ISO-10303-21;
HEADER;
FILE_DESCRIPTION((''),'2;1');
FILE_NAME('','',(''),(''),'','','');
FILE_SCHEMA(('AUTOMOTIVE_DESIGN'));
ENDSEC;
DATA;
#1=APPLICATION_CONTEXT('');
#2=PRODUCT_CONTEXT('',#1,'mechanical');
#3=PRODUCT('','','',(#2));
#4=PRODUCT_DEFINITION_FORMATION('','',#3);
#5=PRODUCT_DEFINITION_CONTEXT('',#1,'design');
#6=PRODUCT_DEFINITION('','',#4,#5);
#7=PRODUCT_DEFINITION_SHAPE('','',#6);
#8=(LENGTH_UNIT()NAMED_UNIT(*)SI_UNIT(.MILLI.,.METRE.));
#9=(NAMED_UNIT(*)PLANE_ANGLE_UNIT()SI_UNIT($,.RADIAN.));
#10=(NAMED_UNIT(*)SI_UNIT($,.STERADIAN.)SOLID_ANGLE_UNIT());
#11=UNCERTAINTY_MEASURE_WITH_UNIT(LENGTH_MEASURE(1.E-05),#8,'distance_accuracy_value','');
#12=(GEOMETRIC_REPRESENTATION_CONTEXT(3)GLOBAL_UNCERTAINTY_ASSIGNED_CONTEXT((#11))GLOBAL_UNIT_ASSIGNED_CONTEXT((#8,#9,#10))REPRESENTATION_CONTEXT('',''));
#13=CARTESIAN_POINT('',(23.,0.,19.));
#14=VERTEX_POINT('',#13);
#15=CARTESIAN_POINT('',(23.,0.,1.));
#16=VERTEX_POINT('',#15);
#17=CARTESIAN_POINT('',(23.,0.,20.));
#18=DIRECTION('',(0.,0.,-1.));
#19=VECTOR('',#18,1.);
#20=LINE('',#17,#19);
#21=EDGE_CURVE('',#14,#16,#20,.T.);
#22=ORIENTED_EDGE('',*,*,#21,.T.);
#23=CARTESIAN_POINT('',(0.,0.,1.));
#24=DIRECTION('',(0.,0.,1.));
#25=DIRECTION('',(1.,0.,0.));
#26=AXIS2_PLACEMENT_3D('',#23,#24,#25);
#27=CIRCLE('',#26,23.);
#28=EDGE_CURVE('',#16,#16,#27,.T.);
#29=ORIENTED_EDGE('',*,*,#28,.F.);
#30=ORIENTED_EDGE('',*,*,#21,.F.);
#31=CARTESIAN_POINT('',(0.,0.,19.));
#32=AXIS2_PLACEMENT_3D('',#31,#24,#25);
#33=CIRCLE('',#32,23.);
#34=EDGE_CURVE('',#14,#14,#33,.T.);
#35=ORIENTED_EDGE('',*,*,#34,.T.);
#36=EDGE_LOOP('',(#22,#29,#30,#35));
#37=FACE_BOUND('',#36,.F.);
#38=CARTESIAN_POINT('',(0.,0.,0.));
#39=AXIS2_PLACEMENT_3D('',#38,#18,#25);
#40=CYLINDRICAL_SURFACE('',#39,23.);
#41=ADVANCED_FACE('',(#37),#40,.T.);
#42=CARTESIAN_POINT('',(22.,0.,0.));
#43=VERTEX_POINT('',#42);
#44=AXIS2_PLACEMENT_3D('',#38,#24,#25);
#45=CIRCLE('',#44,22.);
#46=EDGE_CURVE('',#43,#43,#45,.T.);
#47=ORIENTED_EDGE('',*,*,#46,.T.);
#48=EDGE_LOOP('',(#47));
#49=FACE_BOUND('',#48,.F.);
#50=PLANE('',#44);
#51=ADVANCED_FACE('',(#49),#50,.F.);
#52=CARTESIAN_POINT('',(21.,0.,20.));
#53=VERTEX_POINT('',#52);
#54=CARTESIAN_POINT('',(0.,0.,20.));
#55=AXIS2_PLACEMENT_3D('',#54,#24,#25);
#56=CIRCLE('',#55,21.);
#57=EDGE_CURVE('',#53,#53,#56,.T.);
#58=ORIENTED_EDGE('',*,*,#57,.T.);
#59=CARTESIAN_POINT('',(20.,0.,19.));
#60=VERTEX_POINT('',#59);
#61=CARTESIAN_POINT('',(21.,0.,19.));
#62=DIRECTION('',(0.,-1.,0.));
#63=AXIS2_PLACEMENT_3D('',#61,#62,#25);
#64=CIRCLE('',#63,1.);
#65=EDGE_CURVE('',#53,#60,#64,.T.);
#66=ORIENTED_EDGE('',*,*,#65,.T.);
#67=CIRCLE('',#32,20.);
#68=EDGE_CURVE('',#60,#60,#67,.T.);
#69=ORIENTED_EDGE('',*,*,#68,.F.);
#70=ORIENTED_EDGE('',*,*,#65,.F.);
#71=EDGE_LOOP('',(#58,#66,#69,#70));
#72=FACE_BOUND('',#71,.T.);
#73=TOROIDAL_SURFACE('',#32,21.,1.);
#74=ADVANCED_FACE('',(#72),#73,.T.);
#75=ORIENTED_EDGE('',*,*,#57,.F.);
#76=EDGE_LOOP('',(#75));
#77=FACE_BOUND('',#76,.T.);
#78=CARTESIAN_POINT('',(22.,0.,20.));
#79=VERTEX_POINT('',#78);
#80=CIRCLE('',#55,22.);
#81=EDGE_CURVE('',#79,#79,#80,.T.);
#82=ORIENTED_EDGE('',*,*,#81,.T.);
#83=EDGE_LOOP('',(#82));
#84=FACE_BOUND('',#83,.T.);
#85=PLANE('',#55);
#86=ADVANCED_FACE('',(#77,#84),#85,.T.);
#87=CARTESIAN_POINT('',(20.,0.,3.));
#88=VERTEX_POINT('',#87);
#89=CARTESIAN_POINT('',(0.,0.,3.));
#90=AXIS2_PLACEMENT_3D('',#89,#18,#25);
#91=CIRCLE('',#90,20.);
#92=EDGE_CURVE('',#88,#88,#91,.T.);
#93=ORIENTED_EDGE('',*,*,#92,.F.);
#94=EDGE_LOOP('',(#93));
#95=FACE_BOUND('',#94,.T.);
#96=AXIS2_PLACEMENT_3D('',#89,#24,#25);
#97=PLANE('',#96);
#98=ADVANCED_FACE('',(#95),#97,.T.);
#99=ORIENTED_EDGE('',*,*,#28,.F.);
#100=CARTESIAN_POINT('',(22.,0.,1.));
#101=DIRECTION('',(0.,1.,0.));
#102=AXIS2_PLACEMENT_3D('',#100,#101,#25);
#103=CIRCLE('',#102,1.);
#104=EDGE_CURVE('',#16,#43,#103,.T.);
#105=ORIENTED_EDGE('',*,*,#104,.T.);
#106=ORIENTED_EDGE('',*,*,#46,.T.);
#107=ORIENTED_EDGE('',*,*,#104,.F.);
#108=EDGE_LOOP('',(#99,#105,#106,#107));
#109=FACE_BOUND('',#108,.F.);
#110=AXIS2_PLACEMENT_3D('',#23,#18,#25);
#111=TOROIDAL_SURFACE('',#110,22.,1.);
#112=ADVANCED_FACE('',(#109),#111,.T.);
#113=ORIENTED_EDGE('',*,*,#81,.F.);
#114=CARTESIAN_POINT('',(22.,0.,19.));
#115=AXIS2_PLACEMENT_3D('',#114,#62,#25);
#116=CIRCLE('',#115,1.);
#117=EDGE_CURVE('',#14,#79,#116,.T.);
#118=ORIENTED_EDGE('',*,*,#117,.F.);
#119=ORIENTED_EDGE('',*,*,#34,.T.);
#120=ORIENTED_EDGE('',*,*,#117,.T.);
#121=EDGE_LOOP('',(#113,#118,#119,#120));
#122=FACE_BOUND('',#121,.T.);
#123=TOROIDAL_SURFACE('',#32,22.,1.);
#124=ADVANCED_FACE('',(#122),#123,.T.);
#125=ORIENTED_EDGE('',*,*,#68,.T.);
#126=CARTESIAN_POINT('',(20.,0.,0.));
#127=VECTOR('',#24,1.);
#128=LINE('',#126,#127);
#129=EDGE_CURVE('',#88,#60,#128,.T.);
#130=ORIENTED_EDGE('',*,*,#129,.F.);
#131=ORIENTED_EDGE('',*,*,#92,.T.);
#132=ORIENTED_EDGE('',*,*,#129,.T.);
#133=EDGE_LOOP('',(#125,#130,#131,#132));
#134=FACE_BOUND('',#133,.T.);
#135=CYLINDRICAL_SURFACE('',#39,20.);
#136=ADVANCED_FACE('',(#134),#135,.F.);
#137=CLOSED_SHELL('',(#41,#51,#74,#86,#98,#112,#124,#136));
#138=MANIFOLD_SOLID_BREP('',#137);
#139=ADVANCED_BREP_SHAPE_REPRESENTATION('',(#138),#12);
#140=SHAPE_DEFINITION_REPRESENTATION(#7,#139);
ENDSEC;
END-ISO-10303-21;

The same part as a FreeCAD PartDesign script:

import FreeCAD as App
import Part
import Sketcher
from FreeCAD import Vector
Q = App.Units.Quantity


def edges_at(feature, points):
    """Names of the edges that pass closest to the given points."""
    edges = feature.Shape.Edges
    near = lambda p: min(range(len(edges)), key=lambda i: edges[i].distToShape(Part.Vertex(*p))[0])
    return sorted({f"Edge{near(p) + 1}" for p in points})

doc = App.newDocument("Part")
body = doc.addObject("PartDesign::Body", "Body")

# Sketch on XY plane
sketch1 = doc.addObject("Sketcher::SketchObject", "Sketch")
body.addObject(sketch1)
sketch1.AttachmentSupport = (doc.XY_Plane, [""])
sketch1.MapMode = "FlatFace"
sketch1.addGeometry(Part.Circle(Vector(0, 0, 0), Vector(0, 0, 1), 23), False)
sketch1.addGeometry(Part.Circle(Vector(0, 0, 0), Vector(0, 0, 1), 20), False)
sketch1.addConstraint(Sketcher.Constraint("Coincident", 0, 3, -1, 1))
sketch1.addConstraint(Sketcher.Constraint("Coincident", 1, 3, -1, 1))
sketch1.addConstraint(Sketcher.Constraint("Diameter", 0, Q("46 mm")))
sketch1.addConstraint(Sketcher.Constraint("Diameter", 1, Q("40 mm")))
pad1 = doc.addObject("PartDesign::Pad", "Pad")
body.addObject(pad1)
pad1.Profile = sketch1
pad1.Length = 20

# Sketch on XY plane
sketch2 = doc.addObject("Sketcher::SketchObject", "Sketch001")
body.addObject(sketch2)
sketch2.AttachmentSupport = (doc.XY_Plane, [""])
sketch2.MapMode = "FlatFace"
sketch2.addGeometry(Part.Circle(Vector(0, 0, 0), Vector(0, 0, 1), 23), False)
sketch2.addConstraint(Sketcher.Constraint("Coincident", 0, 3, -1, 1))
sketch2.addConstraint(Sketcher.Constraint("Diameter", 0, Q("46 mm")))
pad2 = doc.addObject("PartDesign::Pad", "Pad001")
body.addObject(pad2)
pad2.Profile = sketch2
pad2.Length = 3
doc.recompute()

fillet = doc.addObject("PartDesign::Fillet", "Fillet")
body.addObject(fillet)
fillet.Base = (pad2, edges_at(pad2, [(-20, 0, 20), (-23, 0, 20), (-23, 0, 0)]))
fillet.Radius = 1

doc.recompute()
